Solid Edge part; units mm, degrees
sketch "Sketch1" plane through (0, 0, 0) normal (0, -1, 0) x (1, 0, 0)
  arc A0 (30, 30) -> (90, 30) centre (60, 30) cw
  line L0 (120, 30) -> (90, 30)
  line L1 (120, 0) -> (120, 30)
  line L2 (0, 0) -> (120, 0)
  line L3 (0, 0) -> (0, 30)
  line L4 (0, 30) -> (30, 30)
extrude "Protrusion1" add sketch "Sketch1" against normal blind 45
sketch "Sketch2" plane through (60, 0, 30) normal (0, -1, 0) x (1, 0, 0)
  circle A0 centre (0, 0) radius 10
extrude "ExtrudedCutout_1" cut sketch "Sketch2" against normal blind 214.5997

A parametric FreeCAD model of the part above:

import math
import FreeCAD as App
import Part
import Sketcher

V = App.Vector

doc = App.newDocument("Part")
body = doc.addObject("PartDesign::Body", "Body")

# Sketch on XZ plane
sketch1 = body.newObject("Sketcher::SketchObject", "Sketch")
sketch1.AttachmentSupport = (doc.getObject("XZ_Plane"), [""])
sketch1.MapMode = "FlatFace"
sketch1.addGeometry(Part.ArcOfCircle(Part.Circle(V(60, 30, 0), V(0, 0, 1), 30), math.radians(0), math.radians(180)), False)
sketch1.addGeometry(Part.LineSegment(V(30, 30, 0), V(0, 30, 0)), False)
sketch1.addGeometry(Part.LineSegment(V(0, 30, 0), V(0, 0, 0)), False)
sketch1.addGeometry(Part.LineSegment(V(0, 0, 0), V(120, 0, 0)), False)
sketch1.addGeometry(Part.LineSegment(V(120, 0, 0), V(120, 30, 0)), False)
sketch1.addGeometry(Part.LineSegment(V(120, 30, 0), V(90, 30, 0)), False)
sketch1.addConstraint(Sketcher.Constraint("Coincident", 0, 2, 1, 1))
sketch1.addConstraint(Sketcher.Constraint("Coincident", 1, 2, 2, 1))
sketch1.addConstraint(Sketcher.Constraint("Coincident", 2, 2, 3, 1))
sketch1.addConstraint(Sketcher.Constraint("Coincident", 3, 2, 4, 1))
sketch1.addConstraint(Sketcher.Constraint("Coincident", 4, 2, 5, 1))
sketch1.addConstraint(Sketcher.Constraint("Coincident", 5, 2, 0, 1))
sketch1.addConstraint(Sketcher.Constraint("Horizontal", 1))
sketch1.addConstraint(Sketcher.Constraint("Vertical", 2))
sketch1.addConstraint(Sketcher.Constraint("Horizontal", 3))
sketch1.addConstraint(Sketcher.Constraint("Vertical", 4))
sketch1.addConstraint(Sketcher.Constraint("Horizontal", 5))
sketch1.addConstraint(Sketcher.Constraint("Coincident", 2, 2, -1, 1))
sketch1.addConstraint(Sketcher.Constraint("Horizontal", 1, 2, 4, 2))
sketch1.addConstraint(Sketcher.Constraint("Equal", 1, 5))
sketch1.addConstraint(Sketcher.Constraint("Equal", 5, 2))
sketch1.addConstraint(Sketcher.Constraint("Radius", 0, 30.0))
sketch1.addConstraint(Sketcher.Constraint("DistanceX", 1, 2, 1, 1, 30.0))
sketch1.addConstraint(Sketcher.Constraint("DistanceY", -1, 1, 0, 3, 30.0))
pad1 = body.newObject("PartDesign::Pad", "Pad")
pad1.Profile = sketch1
pad1.Length = 45
pad1.Reversed = True

# Sketch on XZ plane
sketch2 = body.newObject("Sketcher::SketchObject", "Sketch001")
sketch2.AttachmentSupport = (doc.getObject("XZ_Plane"), [""])
sketch2.MapMode = "FlatFace"
sketch2.addGeometry(Part.Circle(V(60, 30, 0), V(0, 0, 1), 10), False)
sketch2.addConstraint(Sketcher.Constraint("Diameter", 0, 20.0))
sketch2.addConstraint(Sketcher.Constraint("DistanceX", -1, 1, 0, 3, 60.0))
sketch2.addConstraint(Sketcher.Constraint("DistanceY", -1, 1, 0, 3, 30.0))
pocket1 = body.newObject("PartDesign::Pocket", "Pocket")
pocket1.Profile = sketch2
pocket1.Length = 214.5997

doc.recompute()
